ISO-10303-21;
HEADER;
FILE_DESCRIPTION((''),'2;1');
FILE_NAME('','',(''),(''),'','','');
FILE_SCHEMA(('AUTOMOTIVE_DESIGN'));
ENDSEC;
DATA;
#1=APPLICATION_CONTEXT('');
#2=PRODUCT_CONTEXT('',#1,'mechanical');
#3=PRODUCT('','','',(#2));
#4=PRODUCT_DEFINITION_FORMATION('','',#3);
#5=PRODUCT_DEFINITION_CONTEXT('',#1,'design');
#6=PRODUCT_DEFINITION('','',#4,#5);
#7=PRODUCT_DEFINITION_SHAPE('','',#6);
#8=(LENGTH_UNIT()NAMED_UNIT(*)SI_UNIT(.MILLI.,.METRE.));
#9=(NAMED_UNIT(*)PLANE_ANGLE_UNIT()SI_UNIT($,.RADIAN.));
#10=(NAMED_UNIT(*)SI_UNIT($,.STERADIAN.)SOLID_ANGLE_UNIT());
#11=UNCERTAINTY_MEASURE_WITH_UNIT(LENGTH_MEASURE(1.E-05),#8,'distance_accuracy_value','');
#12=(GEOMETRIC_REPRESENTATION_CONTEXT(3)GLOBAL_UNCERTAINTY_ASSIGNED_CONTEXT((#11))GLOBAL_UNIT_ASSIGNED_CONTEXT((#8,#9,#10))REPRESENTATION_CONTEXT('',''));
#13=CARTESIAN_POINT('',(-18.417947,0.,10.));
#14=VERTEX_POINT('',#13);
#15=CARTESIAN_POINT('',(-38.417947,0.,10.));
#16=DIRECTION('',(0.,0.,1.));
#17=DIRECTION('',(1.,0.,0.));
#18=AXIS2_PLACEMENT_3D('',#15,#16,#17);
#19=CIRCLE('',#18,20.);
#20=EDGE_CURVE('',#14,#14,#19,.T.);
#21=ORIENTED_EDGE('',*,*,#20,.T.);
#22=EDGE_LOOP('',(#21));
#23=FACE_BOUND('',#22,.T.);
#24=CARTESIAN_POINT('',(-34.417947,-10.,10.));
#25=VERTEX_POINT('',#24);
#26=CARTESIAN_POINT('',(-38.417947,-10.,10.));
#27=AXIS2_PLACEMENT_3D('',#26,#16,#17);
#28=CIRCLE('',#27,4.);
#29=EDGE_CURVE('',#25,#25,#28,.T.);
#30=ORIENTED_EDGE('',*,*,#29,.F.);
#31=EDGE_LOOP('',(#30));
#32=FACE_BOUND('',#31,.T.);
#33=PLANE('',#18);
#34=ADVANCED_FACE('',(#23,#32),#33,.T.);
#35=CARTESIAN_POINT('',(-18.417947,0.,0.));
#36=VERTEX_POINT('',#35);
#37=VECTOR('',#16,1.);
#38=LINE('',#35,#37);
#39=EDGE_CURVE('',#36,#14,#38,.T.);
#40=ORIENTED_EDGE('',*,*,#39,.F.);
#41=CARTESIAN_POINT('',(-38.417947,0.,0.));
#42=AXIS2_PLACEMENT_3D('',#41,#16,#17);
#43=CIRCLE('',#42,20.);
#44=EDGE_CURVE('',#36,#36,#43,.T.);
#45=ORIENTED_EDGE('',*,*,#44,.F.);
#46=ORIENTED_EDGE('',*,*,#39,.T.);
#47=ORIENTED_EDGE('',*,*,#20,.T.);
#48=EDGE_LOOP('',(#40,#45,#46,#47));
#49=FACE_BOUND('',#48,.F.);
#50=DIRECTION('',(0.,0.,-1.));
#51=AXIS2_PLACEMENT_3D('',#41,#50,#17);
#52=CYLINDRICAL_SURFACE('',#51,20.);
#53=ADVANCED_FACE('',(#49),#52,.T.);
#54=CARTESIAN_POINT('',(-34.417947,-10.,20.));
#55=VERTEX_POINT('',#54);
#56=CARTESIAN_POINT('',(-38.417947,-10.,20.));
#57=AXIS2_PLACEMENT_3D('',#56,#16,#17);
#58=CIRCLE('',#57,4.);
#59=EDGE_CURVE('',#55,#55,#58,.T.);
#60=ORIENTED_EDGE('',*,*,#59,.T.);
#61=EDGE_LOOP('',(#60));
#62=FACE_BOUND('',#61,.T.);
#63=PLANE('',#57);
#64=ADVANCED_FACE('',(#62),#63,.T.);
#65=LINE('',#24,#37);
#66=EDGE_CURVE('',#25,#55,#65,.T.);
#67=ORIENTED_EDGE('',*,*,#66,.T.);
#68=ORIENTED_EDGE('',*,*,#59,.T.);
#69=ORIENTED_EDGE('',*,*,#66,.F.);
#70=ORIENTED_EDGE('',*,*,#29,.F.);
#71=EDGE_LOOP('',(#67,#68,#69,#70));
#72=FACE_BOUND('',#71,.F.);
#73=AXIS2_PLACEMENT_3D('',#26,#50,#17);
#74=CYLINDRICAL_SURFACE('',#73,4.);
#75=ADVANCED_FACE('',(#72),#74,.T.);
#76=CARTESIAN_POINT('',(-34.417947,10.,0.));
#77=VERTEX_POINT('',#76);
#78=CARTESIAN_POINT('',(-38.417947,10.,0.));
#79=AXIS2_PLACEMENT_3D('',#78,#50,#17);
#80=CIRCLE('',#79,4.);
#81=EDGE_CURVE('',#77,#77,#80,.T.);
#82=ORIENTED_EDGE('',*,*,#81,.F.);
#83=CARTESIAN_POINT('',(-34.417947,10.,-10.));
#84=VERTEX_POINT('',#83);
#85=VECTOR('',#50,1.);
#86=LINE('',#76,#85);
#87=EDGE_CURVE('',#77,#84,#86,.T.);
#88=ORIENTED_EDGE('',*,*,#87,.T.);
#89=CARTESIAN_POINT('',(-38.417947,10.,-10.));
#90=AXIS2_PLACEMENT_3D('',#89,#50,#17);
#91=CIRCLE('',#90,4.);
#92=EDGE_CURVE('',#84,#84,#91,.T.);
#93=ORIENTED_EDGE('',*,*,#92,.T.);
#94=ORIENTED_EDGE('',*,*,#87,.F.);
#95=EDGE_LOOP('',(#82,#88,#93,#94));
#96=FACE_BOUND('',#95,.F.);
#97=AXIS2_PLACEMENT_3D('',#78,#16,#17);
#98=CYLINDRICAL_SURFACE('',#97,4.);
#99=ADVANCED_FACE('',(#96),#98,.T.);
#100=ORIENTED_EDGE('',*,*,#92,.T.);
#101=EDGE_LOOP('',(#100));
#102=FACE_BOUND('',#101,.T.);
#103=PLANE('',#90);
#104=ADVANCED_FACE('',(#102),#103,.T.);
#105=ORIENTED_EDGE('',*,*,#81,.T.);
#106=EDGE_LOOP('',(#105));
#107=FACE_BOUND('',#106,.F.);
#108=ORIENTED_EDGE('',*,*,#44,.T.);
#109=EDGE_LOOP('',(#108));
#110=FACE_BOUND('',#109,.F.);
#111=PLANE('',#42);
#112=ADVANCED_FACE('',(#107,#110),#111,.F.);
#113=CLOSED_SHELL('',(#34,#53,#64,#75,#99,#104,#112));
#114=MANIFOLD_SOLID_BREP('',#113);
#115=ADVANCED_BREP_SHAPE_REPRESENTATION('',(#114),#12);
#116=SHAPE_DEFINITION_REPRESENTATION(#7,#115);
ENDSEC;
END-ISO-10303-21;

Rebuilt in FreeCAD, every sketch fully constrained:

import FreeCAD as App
import Part
import Sketcher
from FreeCAD import Vector
Q = App.Units.Quantity

doc = App.newDocument("Part")
body = doc.addObject("PartDesign::Body", "Body")

# Sketch on XY plane
sketch1 = body.newObject("Sketcher::SketchObject", "Sketch")
sketch1.AttachmentSupport = (doc.getObject("XY_Plane"), [""])
sketch1.MapMode = "FlatFace"
sketch1.addGeometry(Part.Circle(Vector(-38, 0, 0), Vector(0, 0, 1), 20), False)
sketch1.addConstraint([
    Sketcher.Constraint("PointOnObject", 0, 3, -1),
    Sketcher.Constraint("Diameter", 0, Q("40 mm")),
    Sketcher.Constraint("DistanceX", 0, 3, -1, 1, Q("38.417947 mm")),
])
pad1 = body.newObject("PartDesign::Pad", "Pad")
pad1.Profile = sketch1
pad1.Length = 10

# Sketch on XY plane
sketch2 = body.newObject("Sketcher::SketchObject", "Sketch001")
sketch2.AttachmentSupport = (doc.getObject("XY_Plane"), [""])
sketch2.MapMode = "FlatFace"
sketch2.addGeometry(Part.Circle(Vector(-38.4, 10, 0), Vector(0, 0, 1), 4), False)
sketch2.addConstraint([
    Sketcher.Constraint("Diameter", 0, Q("8 mm")),
    Sketcher.Constraint("DistanceY", -1, 1, 0, 3, Q("10 mm")),
    Sketcher.Constraint("DistanceX", 0, 3, -1, 1, Q("38.417947 mm")),
])
pad2 = body.newObject("PartDesign::Pad", "Pad001")
pad2.Profile = sketch2
pad2.Length = 10
pad2.Reversed = True

# Sketch on XY plane
sketch3 = body.newObject("Sketcher::SketchObject", "Sketch002")
sketch3.AttachmentSupport = (doc.getObject("XY_Plane"), [""])
sketch3.MapMode = "FlatFace"
sketch3.AttachmentOffset = App.Placement(Vector(0, 0, 10), App.Rotation())
sketch3.addGeometry(Part.Circle(Vector(-38.4, -10, 0), Vector(0, 0, 1), 4), False)
sketch3.addConstraint([
    Sketcher.Constraint("Diameter", 0, Q("8 mm")),
    Sketcher.Constraint("DistanceY", 0, 3, -1, 1, Q("10 mm")),
    Sketcher.Constraint("DistanceX", 0, 3, -1, 1, Q("38.417947 mm")),
])
pad3 = body.newObject("PartDesign::Pad", "Pad002")
pad3.Profile = sketch3
pad3.Length = 10

doc.recompute()
